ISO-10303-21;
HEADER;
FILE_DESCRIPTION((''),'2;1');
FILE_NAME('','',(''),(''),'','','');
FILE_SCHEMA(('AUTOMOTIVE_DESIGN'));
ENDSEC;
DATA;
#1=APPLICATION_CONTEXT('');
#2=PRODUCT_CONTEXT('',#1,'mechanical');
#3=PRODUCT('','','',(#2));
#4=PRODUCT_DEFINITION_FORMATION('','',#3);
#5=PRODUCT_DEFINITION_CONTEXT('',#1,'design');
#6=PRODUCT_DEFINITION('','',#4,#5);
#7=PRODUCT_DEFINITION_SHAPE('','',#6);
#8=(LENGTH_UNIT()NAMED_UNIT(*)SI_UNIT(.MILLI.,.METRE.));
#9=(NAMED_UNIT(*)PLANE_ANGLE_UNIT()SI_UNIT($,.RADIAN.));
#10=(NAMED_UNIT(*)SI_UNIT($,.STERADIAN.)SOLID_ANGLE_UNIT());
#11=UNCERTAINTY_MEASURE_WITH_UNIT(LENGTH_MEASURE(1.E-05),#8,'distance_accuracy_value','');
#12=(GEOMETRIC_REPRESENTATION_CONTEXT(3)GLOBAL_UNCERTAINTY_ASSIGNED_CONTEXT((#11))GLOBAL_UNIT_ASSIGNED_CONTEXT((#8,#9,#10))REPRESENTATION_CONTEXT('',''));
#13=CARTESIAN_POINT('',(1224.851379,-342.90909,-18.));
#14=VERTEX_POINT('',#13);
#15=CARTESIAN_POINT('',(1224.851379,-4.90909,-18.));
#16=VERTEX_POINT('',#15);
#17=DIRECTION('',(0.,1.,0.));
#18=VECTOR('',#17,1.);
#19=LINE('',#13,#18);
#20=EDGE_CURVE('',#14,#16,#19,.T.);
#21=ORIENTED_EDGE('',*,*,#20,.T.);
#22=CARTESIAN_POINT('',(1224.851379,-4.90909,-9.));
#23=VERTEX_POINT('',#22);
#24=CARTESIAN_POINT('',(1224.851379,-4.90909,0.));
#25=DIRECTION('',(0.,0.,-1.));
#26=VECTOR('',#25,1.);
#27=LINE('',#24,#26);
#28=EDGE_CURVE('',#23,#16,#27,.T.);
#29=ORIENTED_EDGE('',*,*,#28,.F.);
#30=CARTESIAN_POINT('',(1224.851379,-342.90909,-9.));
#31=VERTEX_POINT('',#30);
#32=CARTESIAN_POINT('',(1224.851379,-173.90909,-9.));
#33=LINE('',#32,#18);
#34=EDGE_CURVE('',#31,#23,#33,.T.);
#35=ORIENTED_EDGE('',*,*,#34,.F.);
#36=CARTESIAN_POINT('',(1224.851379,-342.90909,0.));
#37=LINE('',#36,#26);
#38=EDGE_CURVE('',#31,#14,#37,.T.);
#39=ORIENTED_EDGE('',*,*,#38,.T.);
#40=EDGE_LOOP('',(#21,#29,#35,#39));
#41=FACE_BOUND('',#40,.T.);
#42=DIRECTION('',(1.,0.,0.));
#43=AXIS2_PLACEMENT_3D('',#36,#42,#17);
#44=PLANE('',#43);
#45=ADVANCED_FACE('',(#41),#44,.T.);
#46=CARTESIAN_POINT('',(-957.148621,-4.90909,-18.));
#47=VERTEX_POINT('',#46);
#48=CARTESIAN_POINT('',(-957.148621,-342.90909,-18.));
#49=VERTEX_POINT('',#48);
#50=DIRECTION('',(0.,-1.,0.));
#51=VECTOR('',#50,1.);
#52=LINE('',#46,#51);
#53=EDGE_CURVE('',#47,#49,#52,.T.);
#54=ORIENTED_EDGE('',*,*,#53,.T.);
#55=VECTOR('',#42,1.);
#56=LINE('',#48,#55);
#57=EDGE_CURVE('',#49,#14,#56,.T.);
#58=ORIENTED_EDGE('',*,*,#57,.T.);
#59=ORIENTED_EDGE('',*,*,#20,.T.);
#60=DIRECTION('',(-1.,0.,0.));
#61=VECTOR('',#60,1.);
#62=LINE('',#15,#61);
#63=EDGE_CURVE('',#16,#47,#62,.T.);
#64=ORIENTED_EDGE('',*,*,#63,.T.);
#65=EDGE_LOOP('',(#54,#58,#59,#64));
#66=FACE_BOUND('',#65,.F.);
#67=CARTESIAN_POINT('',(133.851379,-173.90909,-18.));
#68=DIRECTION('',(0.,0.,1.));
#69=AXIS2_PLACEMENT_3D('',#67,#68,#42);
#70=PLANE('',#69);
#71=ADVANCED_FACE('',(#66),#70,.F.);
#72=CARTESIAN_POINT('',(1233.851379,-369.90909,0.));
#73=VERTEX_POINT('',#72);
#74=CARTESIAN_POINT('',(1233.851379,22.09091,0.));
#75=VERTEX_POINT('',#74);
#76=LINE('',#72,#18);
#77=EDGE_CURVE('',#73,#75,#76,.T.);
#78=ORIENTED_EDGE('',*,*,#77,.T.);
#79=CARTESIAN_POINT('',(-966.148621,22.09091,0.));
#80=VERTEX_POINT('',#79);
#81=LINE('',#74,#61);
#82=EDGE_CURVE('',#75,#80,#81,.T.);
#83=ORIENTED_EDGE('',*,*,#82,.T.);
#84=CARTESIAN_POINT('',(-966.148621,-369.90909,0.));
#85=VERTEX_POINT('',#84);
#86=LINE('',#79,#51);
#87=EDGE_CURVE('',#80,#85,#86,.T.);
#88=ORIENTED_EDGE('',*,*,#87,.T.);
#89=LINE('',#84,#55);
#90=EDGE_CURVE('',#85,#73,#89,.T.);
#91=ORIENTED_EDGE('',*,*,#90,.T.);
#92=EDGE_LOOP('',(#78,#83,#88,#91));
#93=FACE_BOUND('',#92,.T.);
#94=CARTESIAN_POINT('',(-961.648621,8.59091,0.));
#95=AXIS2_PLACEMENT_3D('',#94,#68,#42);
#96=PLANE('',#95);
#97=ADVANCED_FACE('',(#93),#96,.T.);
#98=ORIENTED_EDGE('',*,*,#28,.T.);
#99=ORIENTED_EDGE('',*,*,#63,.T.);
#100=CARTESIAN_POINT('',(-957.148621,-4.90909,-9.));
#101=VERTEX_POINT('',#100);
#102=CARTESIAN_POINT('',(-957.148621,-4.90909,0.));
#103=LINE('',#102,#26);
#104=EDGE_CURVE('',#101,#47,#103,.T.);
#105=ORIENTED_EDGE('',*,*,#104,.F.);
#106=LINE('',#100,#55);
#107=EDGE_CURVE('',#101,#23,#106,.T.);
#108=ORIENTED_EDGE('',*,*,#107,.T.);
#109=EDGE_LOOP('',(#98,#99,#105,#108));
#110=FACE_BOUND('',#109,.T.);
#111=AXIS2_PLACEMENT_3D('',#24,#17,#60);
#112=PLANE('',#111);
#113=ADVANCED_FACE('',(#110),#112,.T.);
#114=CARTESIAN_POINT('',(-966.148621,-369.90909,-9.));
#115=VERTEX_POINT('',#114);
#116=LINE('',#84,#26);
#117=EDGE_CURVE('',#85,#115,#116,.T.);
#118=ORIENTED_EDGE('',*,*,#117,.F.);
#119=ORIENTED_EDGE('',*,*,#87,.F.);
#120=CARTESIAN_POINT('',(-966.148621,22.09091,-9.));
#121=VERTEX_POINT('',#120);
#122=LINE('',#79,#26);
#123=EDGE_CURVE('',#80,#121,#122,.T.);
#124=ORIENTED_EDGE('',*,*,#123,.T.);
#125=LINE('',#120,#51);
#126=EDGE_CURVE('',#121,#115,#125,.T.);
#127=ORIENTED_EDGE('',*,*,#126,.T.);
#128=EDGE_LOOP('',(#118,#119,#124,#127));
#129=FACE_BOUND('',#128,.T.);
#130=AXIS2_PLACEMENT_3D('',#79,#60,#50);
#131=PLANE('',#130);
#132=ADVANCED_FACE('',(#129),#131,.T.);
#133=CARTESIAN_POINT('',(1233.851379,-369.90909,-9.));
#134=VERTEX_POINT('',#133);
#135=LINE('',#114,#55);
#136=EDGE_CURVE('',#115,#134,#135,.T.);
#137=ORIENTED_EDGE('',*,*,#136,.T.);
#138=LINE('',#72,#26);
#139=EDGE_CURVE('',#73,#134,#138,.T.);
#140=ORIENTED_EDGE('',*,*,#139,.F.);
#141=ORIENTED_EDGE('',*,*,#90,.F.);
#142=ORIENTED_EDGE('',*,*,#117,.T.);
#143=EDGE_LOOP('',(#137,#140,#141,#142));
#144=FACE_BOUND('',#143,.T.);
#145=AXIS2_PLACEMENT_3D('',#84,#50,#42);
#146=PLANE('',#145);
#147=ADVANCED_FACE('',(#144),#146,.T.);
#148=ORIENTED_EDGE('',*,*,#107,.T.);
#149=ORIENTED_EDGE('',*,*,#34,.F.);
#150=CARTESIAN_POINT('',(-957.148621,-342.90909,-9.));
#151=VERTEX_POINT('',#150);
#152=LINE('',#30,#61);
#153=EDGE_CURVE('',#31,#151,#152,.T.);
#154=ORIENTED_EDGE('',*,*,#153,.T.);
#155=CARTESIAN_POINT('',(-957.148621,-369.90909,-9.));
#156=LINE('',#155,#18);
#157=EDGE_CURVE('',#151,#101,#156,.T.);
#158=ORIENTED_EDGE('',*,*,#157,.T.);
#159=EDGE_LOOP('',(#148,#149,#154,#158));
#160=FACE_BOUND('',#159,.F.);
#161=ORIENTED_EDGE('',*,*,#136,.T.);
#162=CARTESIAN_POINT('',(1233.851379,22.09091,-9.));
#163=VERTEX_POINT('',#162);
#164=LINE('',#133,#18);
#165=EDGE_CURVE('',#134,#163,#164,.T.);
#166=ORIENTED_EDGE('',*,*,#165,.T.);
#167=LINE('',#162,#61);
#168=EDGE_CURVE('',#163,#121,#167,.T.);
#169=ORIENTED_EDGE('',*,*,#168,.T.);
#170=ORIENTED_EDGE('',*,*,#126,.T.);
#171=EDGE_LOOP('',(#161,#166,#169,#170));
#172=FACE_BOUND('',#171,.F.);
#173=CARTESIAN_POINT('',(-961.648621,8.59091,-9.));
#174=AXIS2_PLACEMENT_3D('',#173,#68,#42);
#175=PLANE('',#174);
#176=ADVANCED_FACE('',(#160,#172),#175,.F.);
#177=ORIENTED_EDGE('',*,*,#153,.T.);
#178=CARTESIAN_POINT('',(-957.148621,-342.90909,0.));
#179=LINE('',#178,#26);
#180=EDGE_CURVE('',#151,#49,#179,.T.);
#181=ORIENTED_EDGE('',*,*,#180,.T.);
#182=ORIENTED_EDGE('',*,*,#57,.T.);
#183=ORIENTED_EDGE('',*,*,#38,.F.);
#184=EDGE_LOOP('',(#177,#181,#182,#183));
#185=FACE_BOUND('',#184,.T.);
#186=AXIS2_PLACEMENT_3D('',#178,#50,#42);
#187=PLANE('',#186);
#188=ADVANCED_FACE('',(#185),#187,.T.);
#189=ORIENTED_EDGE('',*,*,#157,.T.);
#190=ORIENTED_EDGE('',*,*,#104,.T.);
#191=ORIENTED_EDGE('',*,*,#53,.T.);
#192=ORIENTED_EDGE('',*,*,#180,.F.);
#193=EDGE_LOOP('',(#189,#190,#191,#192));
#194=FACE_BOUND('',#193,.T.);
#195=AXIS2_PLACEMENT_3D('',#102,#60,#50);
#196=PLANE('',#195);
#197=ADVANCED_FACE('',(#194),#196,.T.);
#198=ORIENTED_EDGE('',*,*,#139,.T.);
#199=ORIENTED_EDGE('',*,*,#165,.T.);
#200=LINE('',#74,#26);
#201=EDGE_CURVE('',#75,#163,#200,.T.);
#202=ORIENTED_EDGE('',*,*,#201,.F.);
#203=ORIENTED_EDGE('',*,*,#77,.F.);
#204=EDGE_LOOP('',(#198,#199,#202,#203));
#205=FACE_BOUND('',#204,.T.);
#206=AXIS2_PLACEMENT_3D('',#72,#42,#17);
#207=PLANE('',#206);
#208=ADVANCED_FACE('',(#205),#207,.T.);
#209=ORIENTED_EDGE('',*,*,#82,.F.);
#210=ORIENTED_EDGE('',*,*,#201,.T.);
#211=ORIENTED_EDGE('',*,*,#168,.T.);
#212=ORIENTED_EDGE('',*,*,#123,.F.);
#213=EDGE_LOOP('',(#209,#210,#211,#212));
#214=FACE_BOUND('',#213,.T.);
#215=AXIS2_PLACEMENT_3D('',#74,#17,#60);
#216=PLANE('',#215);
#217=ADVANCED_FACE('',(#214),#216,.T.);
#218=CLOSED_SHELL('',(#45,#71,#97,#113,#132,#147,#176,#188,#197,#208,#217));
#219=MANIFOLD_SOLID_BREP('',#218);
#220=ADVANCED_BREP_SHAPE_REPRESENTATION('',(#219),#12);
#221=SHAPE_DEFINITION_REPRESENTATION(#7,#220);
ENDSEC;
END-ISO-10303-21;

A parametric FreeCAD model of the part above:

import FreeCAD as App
import Part
import Sketcher

V = App.Vector

doc = App.newDocument("Part")
body = doc.addObject("PartDesign::Body", "Body")

# Sketch on XY plane
sketch1 = doc.addObject("Sketcher::SketchObject", "Sketch")
body.addObject(sketch1)
sketch1.AttachmentSupport = (doc.XY_Plane, [""])
sketch1.MapMode = "FlatFace"
sketch1.addGeometry([
    Part.LineSegment(V(-966.148621, -369.90909, 0), V(1233.851379, -369.90909, 0)),  # 0
    Part.LineSegment(V(1233.851379, -369.90909, 0), V(1233.851379, 22.09091, 0)),  # 1
    Part.LineSegment(V(1233.851379, 22.09091, 0), V(-966.148621, 22.09091, 0)),  # 2
    Part.LineSegment(V(-966.148621, 22.09091, 0), V(-966.148621, -369.90909, 0)),  # 3
    Part.LineSegment(V(1224.851379, -4.90909, 0), V(1224.851379, -342.90909, 0)),  # 4
    Part.LineSegment(V(1224.851379, -342.90909, 0), V(-957.148621, -342.90909, 0)),  # 5
    Part.LineSegment(V(-957.148621, -342.90909, 0), V(-957.148621, -4.90909, 0)),  # 6
    Part.LineSegment(V(-957.148621, -4.90909, 0), V(1224.851379, -4.90909, 0)),  # 7
], False)
sketch1.addConstraint([
    Sketcher.Constraint("Coincident", 0, 2, 1, 1),
    Sketcher.Constraint("Coincident", 1, 2, 2, 1),
    Sketcher.Constraint("Coincident", 2, 2, 3, 1),
    Sketcher.Constraint("Coincident", 3, 2, 0, 1),
    Sketcher.Constraint("Coincident", 4, 2, 5, 1),
    Sketcher.Constraint("Coincident", 5, 2, 6, 1),
    Sketcher.Constraint("Coincident", 6, 2, 7, 1),
    Sketcher.Constraint("Coincident", 7, 2, 4, 1),
    Sketcher.Constraint("Horizontal", 0),
    Sketcher.Constraint("Vertical", 1),
    Sketcher.Constraint("Horizontal", 2),
    Sketcher.Constraint("Vertical", 3),
    Sketcher.Constraint("Vertical", 4),
    Sketcher.Constraint("Horizontal", 5),
    Sketcher.Constraint("Vertical", 6),
    Sketcher.Constraint("Horizontal", 7),
    Sketcher.Constraint("DistanceX", 0, 1, 0, 2, 2200.0),
    Sketcher.Constraint("DistanceX", 5, 2, 5, 1, 2182.0),
    Sketcher.Constraint("DistanceY", 1, 1, 1, 2, 392.0),
    Sketcher.Constraint("DistanceY", 4, 2, 4, 1, 338.0),
    Sketcher.Constraint("DistanceX", 4, 2, 0, 2, 9.0),
    Sketcher.Constraint("DistanceY", 0, 2, 4, 2, 27.0),
    Sketcher.Constraint("DistanceX", -1, 1, 0, 2, 1233.851379),
    Sketcher.Constraint("DistanceY", 0, 2, -1, 1, 369.90909),
])
pad1 = doc.addObject("PartDesign::Pad", "Pad")
body.addObject(pad1)
pad1.Profile = sketch1
pad1.Length = 9
pad1.Reversed = True

# Sketch on XY plane
sketch2 = doc.addObject("Sketcher::SketchObject", "Sketch001")
body.addObject(sketch2)
sketch2.AttachmentSupport = (doc.XY_Plane, [""])
sketch2.MapMode = "FlatFace"
sketch2.addGeometry([
    Part.LineSegment(V(-957.148621, -4.90909, 0), V(-957.148621, -342.90909, 0)),
    Part.LineSegment(V(-957.148621, -342.90909, 0), V(1224.851379, -342.90909, 0)),
    Part.LineSegment(V(1224.851379, -342.90909, 0), V(1224.851379, -4.90909, 0)),
    Part.LineSegment(V(1224.851379, -4.90909, 0), V(-957.148621, -4.90909, 0)),
], False)
sketch2.addConstraint([
    Sketcher.Constraint("Coincident", 0, 2, 1, 1),
    Sketcher.Constraint("Coincident", 1, 2, 2, 1),
    Sketcher.Constraint("Coincident", 2, 2, 3, 1),
    Sketcher.Constraint("Coincident", 3, 2, 0, 1),
    Sketcher.Constraint("Vertical", 0),
    Sketcher.Constraint("Horizontal", 1),
    Sketcher.Constraint("Vertical", 2),
    Sketcher.Constraint("Horizontal", 3),
    Sketcher.Constraint("DistanceX", 1, 1, 1, 2, 2182.0),
    Sketcher.Constraint("DistanceY", 0, 2, 0, 1, 338.0),
    Sketcher.Constraint("DistanceX", 0, 2, -1, 1, 957.148621),
    Sketcher.Constraint("DistanceY", 0, 2, -1, 1, 342.90909),
])
pad2 = doc.addObject("PartDesign::Pad", "Pad001")
body.addObject(pad2)
pad2.Profile = sketch2
pad2.Length = 18
pad2.Reversed = True

doc.recompute()
